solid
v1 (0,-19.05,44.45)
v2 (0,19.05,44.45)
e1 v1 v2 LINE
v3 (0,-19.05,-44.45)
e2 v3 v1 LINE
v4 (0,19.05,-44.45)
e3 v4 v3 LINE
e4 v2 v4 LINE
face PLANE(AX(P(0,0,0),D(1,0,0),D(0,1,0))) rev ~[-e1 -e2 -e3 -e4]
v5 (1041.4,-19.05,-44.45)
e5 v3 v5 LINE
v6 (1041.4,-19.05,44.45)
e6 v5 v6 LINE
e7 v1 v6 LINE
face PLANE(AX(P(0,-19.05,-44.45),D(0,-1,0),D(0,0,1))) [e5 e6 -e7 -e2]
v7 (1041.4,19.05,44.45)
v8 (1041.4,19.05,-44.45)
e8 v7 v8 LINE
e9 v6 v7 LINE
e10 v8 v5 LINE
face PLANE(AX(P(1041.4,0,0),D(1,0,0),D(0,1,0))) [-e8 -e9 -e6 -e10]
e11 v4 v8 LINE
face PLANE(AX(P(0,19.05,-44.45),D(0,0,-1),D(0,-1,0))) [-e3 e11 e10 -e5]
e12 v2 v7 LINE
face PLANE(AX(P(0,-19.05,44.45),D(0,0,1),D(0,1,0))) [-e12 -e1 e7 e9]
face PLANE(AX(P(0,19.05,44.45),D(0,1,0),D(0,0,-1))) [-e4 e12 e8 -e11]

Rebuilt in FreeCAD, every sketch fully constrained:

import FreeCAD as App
import Part
import Sketcher
from FreeCAD import Vector
Q = App.Units.Quantity


def add_polygon(sketch, points):
    """Adds a closed chain of lines whose ends are joined by coincident constraints."""
    first, n = sketch.GeometryCount, len(points)
    for a, b in zip(points, points[1:] + points[:1]):
        sketch.addGeometry(Part.LineSegment(App.Vector(*a, 0), App.Vector(*b, 0)), False)
    for i in range(n):
        sketch.addConstraint(Sketcher.Constraint("Coincident", first + i, 2, first + (i + 1) % n, 1))

doc = App.newDocument("Part")
body = doc.addObject("PartDesign::Body", "Body")

# Sketch on YZ plane
sketch1 = body.newObject("Sketcher::SketchObject", "Sketch")
sketch1.AttachmentSupport = (doc.getObject("YZ_Plane"), [""])
sketch1.MapMode = "FlatFace"
add_polygon(sketch1, [(19.05, 44.45), (-19.05, 44.45), (-19.05, -44.45), (19.05, -44.45)])  # lines 0-3
sketch1.addConstraint([
    Sketcher.Constraint("Horizontal", 0),
    Sketcher.Constraint("Vertical", 1),
    Sketcher.Constraint("Horizontal", 2),
    Sketcher.Constraint("Vertical", 3),
    Sketcher.Constraint("Symmetric", 0, 2, 2, 2, -1, 1),
    Sketcher.Constraint("DistanceX", 0, 2, 0, 1, Q("1.5 in")),
    Sketcher.Constraint("DistanceY", 1, 2, 1, 1, Q("3.5 in")),
])
pad1 = body.newObject("PartDesign::Pad", "Pad")
pad1.Profile = sketch1
pad1.Length = Q("41 in")

doc.recompute()
